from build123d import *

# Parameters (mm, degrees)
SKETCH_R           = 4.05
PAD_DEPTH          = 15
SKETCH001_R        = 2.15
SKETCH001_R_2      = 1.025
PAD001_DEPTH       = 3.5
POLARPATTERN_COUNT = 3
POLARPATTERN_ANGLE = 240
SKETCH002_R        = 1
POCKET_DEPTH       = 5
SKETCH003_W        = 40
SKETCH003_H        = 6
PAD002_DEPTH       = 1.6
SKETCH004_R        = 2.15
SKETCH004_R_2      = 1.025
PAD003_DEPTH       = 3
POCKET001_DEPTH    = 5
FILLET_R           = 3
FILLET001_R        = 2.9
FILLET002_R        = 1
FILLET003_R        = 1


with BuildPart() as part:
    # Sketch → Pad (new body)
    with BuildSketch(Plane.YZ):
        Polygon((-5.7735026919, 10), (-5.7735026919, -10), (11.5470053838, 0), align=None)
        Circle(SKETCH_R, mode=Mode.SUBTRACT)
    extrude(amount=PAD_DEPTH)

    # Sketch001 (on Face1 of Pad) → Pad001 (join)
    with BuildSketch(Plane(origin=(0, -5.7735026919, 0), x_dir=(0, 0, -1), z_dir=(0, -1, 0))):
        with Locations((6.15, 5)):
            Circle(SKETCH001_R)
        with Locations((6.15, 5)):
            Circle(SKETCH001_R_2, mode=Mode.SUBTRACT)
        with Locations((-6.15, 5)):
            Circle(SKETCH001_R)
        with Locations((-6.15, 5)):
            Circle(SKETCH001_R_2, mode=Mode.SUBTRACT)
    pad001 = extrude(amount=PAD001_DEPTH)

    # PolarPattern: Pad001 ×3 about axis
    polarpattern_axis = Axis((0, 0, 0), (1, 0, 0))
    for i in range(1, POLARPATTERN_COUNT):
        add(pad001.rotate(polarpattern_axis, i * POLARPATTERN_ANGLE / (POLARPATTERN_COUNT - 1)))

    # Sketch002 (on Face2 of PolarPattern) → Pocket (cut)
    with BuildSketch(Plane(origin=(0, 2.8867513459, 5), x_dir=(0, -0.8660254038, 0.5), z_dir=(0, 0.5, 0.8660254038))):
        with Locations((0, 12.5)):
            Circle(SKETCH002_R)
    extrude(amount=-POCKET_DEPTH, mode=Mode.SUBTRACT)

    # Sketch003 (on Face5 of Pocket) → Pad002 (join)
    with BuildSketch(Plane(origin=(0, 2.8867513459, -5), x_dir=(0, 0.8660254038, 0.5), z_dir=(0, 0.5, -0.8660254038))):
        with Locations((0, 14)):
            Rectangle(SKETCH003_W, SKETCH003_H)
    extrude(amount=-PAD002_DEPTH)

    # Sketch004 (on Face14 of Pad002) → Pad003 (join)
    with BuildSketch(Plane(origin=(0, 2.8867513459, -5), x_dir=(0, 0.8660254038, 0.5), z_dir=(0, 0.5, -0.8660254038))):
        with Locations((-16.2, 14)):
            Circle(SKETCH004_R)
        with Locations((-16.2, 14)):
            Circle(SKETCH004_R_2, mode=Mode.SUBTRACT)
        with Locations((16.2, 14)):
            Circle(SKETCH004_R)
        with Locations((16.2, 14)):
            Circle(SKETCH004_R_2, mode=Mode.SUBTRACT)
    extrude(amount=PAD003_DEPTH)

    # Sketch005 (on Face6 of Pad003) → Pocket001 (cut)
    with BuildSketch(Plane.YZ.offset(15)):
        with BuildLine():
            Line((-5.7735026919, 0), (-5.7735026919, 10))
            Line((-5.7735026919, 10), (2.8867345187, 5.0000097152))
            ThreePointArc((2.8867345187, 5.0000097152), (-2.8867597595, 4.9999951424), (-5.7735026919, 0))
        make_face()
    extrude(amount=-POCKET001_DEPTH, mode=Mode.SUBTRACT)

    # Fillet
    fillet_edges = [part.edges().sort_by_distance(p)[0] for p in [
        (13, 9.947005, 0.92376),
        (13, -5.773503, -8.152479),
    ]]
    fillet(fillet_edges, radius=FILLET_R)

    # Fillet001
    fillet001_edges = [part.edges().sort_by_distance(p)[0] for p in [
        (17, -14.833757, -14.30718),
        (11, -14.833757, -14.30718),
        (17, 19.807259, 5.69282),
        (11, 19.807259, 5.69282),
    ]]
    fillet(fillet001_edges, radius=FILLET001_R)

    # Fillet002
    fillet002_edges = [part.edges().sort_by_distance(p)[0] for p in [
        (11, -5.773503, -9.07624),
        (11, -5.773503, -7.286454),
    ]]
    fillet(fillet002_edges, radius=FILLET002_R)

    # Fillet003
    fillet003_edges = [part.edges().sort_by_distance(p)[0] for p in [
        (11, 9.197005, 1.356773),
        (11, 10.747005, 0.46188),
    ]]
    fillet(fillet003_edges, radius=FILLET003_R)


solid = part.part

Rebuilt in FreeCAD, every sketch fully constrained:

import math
import FreeCAD as App
import Part
import Sketcher
from FreeCAD import Vector
Q = App.Units.Quantity


def edges_at(feature, points):
    """Names of the edges that pass closest to the given points."""
    edges = feature.Shape.Edges
    near = lambda p: min(range(len(edges)), key=lambda i: edges[i].distToShape(Part.Vertex(*p))[0])
    return sorted({f"Edge{near(p) + 1}" for p in points})


def add_polygon(sketch, points):
    """Adds a closed chain of lines whose ends are joined by coincident constraints."""
    first, n = sketch.GeometryCount, len(points)
    for a, b in zip(points, points[1:] + points[:1]):
        sketch.addGeometry(Part.LineSegment(App.Vector(*a, 0), App.Vector(*b, 0)), False)
    for i in range(n):
        sketch.addConstraint(Sketcher.Constraint("Coincident", first + i, 2, first + (i + 1) % n, 1))

doc = App.newDocument("Part")
body = doc.addObject("PartDesign::Body", "Body")

sketch1 = doc.addObject("Sketcher::SketchObject", "Sketch")
body.addObject(sketch1)
sketch1.AttachmentSupport = (doc.YZ_Plane, [""])
sketch1.MapMode = "FlatFace"
add_polygon(sketch1, [(-5.773503, 10), (-5.773503, -10), (11.547005, 0)])
sketch1.addGeometry(Part.Circle(Vector(0, 0, 0), Vector(0, 0, 1), 4.05), False)
sketch1.addConstraint([
    Sketcher.Constraint("Vertical", 0),
    Sketcher.Constraint("Coincident", 3, 3, -1, 1),
    Sketcher.Constraint("PointOnObject", 1, 2, -1),
    Sketcher.Constraint("Equal", 1, 2),
    Sketcher.Constraint("Diameter", 3, 8.1),
    Sketcher.Constraint("DistanceY", 0, 2, 0, 1, 20.0),
    Sketcher.Constraint("Angle", 1, Q("30 deg")),
    Sketcher.Constraint("DistanceX", 0, 2, -1, 1, 5.773503),
])
pad1 = doc.addObject("PartDesign::Pad", "Pad")
body.addObject(pad1)
pad1.Profile = sketch1
pad1.Length = 15

sketch2 = doc.addObject("Sketcher::SketchObject", "Sketch001")
body.addObject(sketch2)
sketch2.AttachmentSupport = (doc.XZ_Plane, [""])
sketch2.MapMode = "FlatFace"
sketch2.AttachmentOffset = App.Placement(Vector(0, 0, 5.773503), App.Rotation())
sketch2.addGeometry([
    Part.Circle(Vector(5, -6.15, 0), Vector(0, 0, 1), 2.15),
    Part.Circle(Vector(5, -6.15, 0), Vector(0, 0, 1), 1.025),
    Part.Circle(Vector(5, 6.15, 0), Vector(0, 0, 1), 2.15),
    Part.Circle(Vector(5, 6.15, 0), Vector(0, 0, 1), 1.025),
], False)
sketch2.addConstraint([
    Sketcher.Constraint("Coincident", 1, 3, 0, 3),
    Sketcher.Constraint("Coincident", 3, 3, 2, 3),
    Sketcher.Constraint("Equal", 0, 2),
    Sketcher.Constraint("Equal", 1, 3),
    Sketcher.Constraint("Symmetric", 0, 3, 2, 3, -1),
    Sketcher.Constraint("Diameter", 0, 4.3),
    Sketcher.Constraint("Diameter", 1, 2.05),
    Sketcher.Constraint("DistanceX", -1, 1, 0, 3, 5.0),
    Sketcher.Constraint("DistanceY", 0, 3, 2, 3, 12.3),
])
pad2 = doc.addObject("PartDesign::Pad", "Pad001")
body.addObject(pad2)
pad2.Profile = sketch2
pad2.Length = 3.5
doc.recompute()

polarpattern = doc.addObject("PartDesign::PolarPattern", "PolarPattern")
body.addObject(polarpattern)
polarpattern.Originals = [pad2]
polarpattern.Axis = (doc.X_Axis, [""])
polarpattern.Angle = 360
polarpattern.Occurrences = 3
body.Tip = polarpattern

sketch3 = doc.addObject("Sketcher::SketchObject", "Sketch002")
body.addObject(sketch3)
sketch3.Placement = App.Placement(Vector(0, 2.886751, 5), App.Rotation(Vector(0, -0.866025404, 0.5), Vector(1, 0, 0), Vector(0, 0.5, 0.866025404), "ZXY"))
sketch3.addGeometry(Part.Circle(Vector(0, 12.5, 0), Vector(0, 0, 1), 1), False)
sketch3.addConstraint([
    Sketcher.Constraint("PointOnObject", 0, 3, -2),
    Sketcher.Constraint("Diameter", 0, 2.0),
    Sketcher.Constraint("DistanceY", -1, 1, 0, 3, 12.5),
])
pocket1 = doc.addObject("PartDesign::Pocket", "Pocket")
body.addObject(pocket1)
pocket1.Profile = sketch3
pocket1.Length = 5

sketch4 = doc.addObject("Sketcher::SketchObject", "Sketch003")
body.addObject(sketch4)
sketch4.Placement = App.Placement(Vector(0, 2.886751, -5), App.Rotation(Vector(0, 0.866025404, 0.5), Vector(1, 0, 0), Vector(0, 0.5, -0.866025404), "ZXY"))
add_polygon(sketch4, [(-20, 17), (-20, 11), (20, 11), (20, 17)])
sketch4.addConstraint([
    Sketcher.Constraint("Vertical", 0),
    Sketcher.Constraint("Horizontal", 1),
    Sketcher.Constraint("Vertical", 2),
    Sketcher.Constraint("Horizontal", 3),
    Sketcher.Constraint("DistanceX", 1, 1, 1, 2, 40.0),
    Sketcher.Constraint("DistanceY", 0, 2, 0, 1, 6.0),
    Sketcher.Constraint("DistanceX", 0, 2, -1, 1, 20.0),
    Sketcher.Constraint("DistanceY", -1, 1, 0, 2, 11.0),
])
pad3 = doc.addObject("PartDesign::Pad", "Pad002")
body.addObject(pad3)
pad3.Profile = sketch4
pad3.Length = 1.6
pad3.Reversed = True

sketch5 = doc.addObject("Sketcher::SketchObject", "Sketch004")
body.addObject(sketch5)
sketch5.Placement = App.Placement(Vector(0, 2.886751, -5), App.Rotation(Vector(0, 0.866025404, 0.5), Vector(1, 0, 0), Vector(0, 0.5, -0.866025404), "ZXY"))
sketch5.addGeometry([
    Part.Circle(Vector(-16.2, 14, 0), Vector(0, 0, 1), 2.15),
    Part.Circle(Vector(-16.2, 14, 0), Vector(0, 0, 1), 1.025),
    Part.Circle(Vector(16.2, 14, 0), Vector(0, 0, 1), 2.15),
    Part.Circle(Vector(16.2, 14, 0), Vector(0, 0, 1), 1.025),
], False)
sketch5.addConstraint([
    Sketcher.Constraint("Coincident", 1, 3, 0, 3),
    Sketcher.Constraint("Coincident", 3, 3, 2, 3),
    Sketcher.Constraint("Equal", 0, 2),
    Sketcher.Constraint("Equal", 1, 3),
    Sketcher.Constraint("Symmetric", 0, 3, 2, 3, -2),
    Sketcher.Constraint("Diameter", 0, 4.3),
    Sketcher.Constraint("Diameter", 1, 2.05),
    Sketcher.Constraint("DistanceY", -1, 1, 0, 3, 14.0),
    Sketcher.Constraint("DistanceX", 0, 3, -1, 1, 16.2),
])
pad4 = doc.addObject("PartDesign::Pad", "Pad003")
body.addObject(pad4)
pad4.Profile = sketch5
pad4.Length = 3

sketch6 = doc.addObject("Sketcher::SketchObject", "Sketch005")
body.addObject(sketch6)
sketch6.AttachmentSupport = (doc.YZ_Plane, [""])
sketch6.MapMode = "FlatFace"
sketch6.AttachmentOffset = App.Placement(Vector(0, 0, 15), App.Rotation())
sketch6.addGeometry([
    Part.LineSegment(Vector(-5.773503, 10, 0), Vector(-5.773503, 0, 0)),
    Part.ArcOfCircle(Part.Circle(Vector(0, 0, 0), Vector(0, 0, 1), 5.773503), math.radians(60.000193), math.radians(180)),
    Part.LineSegment(Vector(2.886735, 5.00001, 0), Vector(-5.773503, 10, 0)),
], False)
sketch6.addConstraint([
    Sketcher.Constraint("Tangent", 0, 2, 1, 2),
    Sketcher.Constraint("Coincident", 1, 1, 2, 1),
    Sketcher.Constraint("Coincident", 2, 2, 0, 1),
    Sketcher.Constraint("Vertical", 0),
    Sketcher.Constraint("Coincident", 1, 3, -1, 1),
    Sketcher.Constraint("DistanceY", 0, 2, 0, 1, 10.0),
    Sketcher.Constraint("Angle", 2, Q("150 deg")),
    Sketcher.Constraint("Distance", 2, 9.999981),
])
pocket2 = doc.addObject("PartDesign::Pocket", "Pocket001")
body.addObject(pocket2)
pocket2.Profile = sketch6
pocket2.Length = 5
doc.recompute()

fillet = doc.addObject("PartDesign::Fillet", "Fillet")
body.addObject(fillet)
fillet.Base = (pocket2, edges_at(pocket2, [(13, 9.947, 0.924), (13, -5.774, -8.152)]))
fillet.Radius = 3
doc.recompute()

fillet2 = doc.addObject("PartDesign::Fillet", "Fillet001")
body.addObject(fillet2)
fillet2.Base = (fillet, edges_at(fillet, [
    (17, -14.834, -14.307),
    (11, -14.834, -14.307),
    (17, 19.807, 5.693),
    (11, 19.807, 5.693),
]))
fillet2.Radius = 2.9
doc.recompute()

fillet3 = doc.addObject("PartDesign::Fillet", "Fillet002")
body.addObject(fillet3)
fillet3.Base = (fillet2, edges_at(fillet2, [(11, -5.774, -8.21), (11, -5.774, -8.21)]))
fillet3.Radius = 1
doc.recompute()

fillet4 = doc.addObject("PartDesign::Fillet", "Fillet003")
body.addObject(fillet4)
fillet4.Base = (fillet3, edges_at(fillet3, [(11, 9.997, 0.895), (11, 9.997, 0.895)]))
fillet4.Radius = 1

doc.recompute()
